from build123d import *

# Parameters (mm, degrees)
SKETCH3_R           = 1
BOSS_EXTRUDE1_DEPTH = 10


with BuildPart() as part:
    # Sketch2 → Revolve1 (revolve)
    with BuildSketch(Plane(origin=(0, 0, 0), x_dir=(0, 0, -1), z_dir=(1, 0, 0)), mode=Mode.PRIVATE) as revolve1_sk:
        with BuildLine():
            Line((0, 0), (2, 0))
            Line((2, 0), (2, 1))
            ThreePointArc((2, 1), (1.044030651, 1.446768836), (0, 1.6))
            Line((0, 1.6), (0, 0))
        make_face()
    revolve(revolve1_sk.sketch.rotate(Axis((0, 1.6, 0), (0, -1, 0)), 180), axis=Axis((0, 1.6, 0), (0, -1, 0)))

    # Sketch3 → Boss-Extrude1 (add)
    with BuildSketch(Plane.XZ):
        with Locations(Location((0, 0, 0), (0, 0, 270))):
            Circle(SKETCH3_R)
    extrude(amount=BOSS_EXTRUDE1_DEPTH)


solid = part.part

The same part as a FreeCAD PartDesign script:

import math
import FreeCAD as App
import Part
import Sketcher

V = App.Vector
Q = App.Units.Quantity

doc = App.newDocument("Part")
body = doc.addObject("PartDesign::Body", "Body")

# Sketch on YZ plane
sketch1 = body.newObject("Sketcher::SketchObject", "Sketch")
sketch1.AttachmentSupport = (doc.getObject("YZ_Plane"), [""])
sketch1.MapMode = "FlatFace"
sketch1.addGeometry(Part.LineSegment(V(0, 0, 0), V(0, -2, 0)), False)
sketch1.addGeometry(Part.LineSegment(V(0, -2, 0), V(1, -2, 0)), False)
sketch1.addGeometry(Part.ArcOfCircle(Part.Circle(V(-2, 0, 0), V(0, 0, 1), 3.6), math.radians(-33), math.radians(0)), False)
sketch1.addGeometry(Part.LineSegment(V(1.6, 0, 0), V(0, 0, 0)), False)
sketch1.addConstraint(Sketcher.Constraint("Coincident", 0, 2, 1, 1))
sketch1.addConstraint(Sketcher.Constraint("Coincident", 1, 2, 2, 1))
sketch1.addConstraint(Sketcher.Constraint("Coincident", 2, 2, 3, 1))
sketch1.addConstraint(Sketcher.Constraint("Coincident", 3, 2, 0, 1))
sketch1.addConstraint(Sketcher.Constraint("Vertical", 0))
sketch1.addConstraint(Sketcher.Constraint("Horizontal", 1))
sketch1.addConstraint(Sketcher.Constraint("Horizontal", 3))
sketch1.addConstraint(Sketcher.Constraint("Coincident", 3, 2, -1, 1))
sketch1.addConstraint(Sketcher.Constraint("PointOnObject", 2, 3, -1))
sketch1.addConstraint(Sketcher.Constraint("DistanceX", 1, 1, 1, 2, Q("1 mm")))
sketch1.addConstraint(Sketcher.Constraint("DistanceY", 0, 2, 0, 1, Q("2 mm")))
sketch1.addConstraint(Sketcher.Constraint("DistanceX", 3, 2, 3, 1, Q("1.6 mm")))
revolution = body.newObject("PartDesign::Revolution", "Revolution")
revolution.Profile = sketch1
revolution.ReferenceAxis = (sketch1, ["H_Axis"])
revolution.Angle = 360

# Sketch on XZ plane
sketch2 = body.newObject("Sketcher::SketchObject", "Sketch001")
sketch2.AttachmentSupport = (doc.getObject("XZ_Plane"), [""])
sketch2.MapMode = "FlatFace"
sketch2.addGeometry(Part.Circle(V(0, 0, 0), V(0, 0, 1), 1), False)
sketch2.addConstraint(Sketcher.Constraint("Coincident", 0, 3, -1, 1))
sketch2.addConstraint(Sketcher.Constraint("Diameter", 0, Q("2 mm")))
pad1 = body.newObject("PartDesign::Pad", "Pad")
pad1.Profile = sketch2
pad1.Length = 10

doc.recompute()
